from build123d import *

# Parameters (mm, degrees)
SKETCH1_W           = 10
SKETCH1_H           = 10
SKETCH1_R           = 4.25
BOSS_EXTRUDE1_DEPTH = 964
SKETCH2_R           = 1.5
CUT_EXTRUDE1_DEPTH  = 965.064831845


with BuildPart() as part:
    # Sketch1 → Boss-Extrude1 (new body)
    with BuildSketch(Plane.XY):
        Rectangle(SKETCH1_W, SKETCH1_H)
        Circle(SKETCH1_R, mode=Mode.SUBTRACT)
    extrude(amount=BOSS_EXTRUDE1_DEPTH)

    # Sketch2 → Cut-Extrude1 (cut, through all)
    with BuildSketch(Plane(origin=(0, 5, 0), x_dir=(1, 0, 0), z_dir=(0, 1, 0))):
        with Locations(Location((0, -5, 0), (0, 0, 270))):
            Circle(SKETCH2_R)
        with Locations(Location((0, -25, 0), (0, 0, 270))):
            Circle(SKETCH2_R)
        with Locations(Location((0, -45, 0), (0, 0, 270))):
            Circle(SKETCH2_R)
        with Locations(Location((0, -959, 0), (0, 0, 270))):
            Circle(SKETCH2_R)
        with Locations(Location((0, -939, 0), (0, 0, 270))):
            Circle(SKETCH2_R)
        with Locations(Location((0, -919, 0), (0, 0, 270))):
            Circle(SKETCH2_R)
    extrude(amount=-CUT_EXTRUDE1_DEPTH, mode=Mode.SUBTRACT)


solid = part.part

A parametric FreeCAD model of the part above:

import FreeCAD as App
import Part
import Sketcher

V = App.Vector
Q = App.Units.Quantity

doc = App.newDocument("Part")
body = doc.addObject("PartDesign::Body", "Body")

sketch1 = body.newObject("Sketcher::SketchObject", "Sketch")
sketch1.AttachmentSupport = (doc.getObject("XY_Plane"), [""])
sketch1.MapMode = "FlatFace"
sketch1.addGeometry(Part.LineSegment(V(-5, 5, 0), V(-5, -5, 0)), False)
sketch1.addGeometry(Part.LineSegment(V(-5, -5, 0), V(5, -5, 0)), False)
sketch1.addGeometry(Part.LineSegment(V(5, -5, 0), V(5, 5, 0)), False)
sketch1.addGeometry(Part.LineSegment(V(5, 5, 0), V(-5, 5, 0)), False)
sketch1.addGeometry(Part.Circle(V(0, 0, 0), V(0, 0, 1), 4.25), False)
sketch1.addConstraint(Sketcher.Constraint("Coincident", 0, 2, 1, 1))
sketch1.addConstraint(Sketcher.Constraint("Coincident", 1, 2, 2, 1))
sketch1.addConstraint(Sketcher.Constraint("Coincident", 2, 2, 3, 1))
sketch1.addConstraint(Sketcher.Constraint("Coincident", 3, 2, 0, 1))
sketch1.addConstraint(Sketcher.Constraint("Vertical", 0))
sketch1.addConstraint(Sketcher.Constraint("Horizontal", 1))
sketch1.addConstraint(Sketcher.Constraint("Vertical", 2))
sketch1.addConstraint(Sketcher.Constraint("Horizontal", 3))
sketch1.addConstraint(Sketcher.Constraint("Coincident", 4, 3, -1, 1))
sketch1.addConstraint(Sketcher.Constraint("Symmetric", 0, 2, 2, 2, -1, 1))
sketch1.addConstraint(Sketcher.Constraint("Equal", 3, 0))
sketch1.addConstraint(Sketcher.Constraint("Diameter", 4, Q("8.5 mm")))
sketch1.addConstraint(Sketcher.Constraint("DistanceX", 1, 1, 1, 2, Q("10 mm")))
pad1 = body.newObject("PartDesign::Pad", "Pad")
pad1.Profile = sketch1
pad1.Length = 964

sketch2 = body.newObject("Sketcher::SketchObject", "Sketch001")
sketch2.AttachmentSupport = (doc.getObject("XZ_Plane"), [""])
sketch2.MapMode = "FlatFace"
sketch2.AttachmentOffset = App.Placement(V(0, 0, -5), App.Rotation())
sketch2.addGeometry(Part.Circle(V(0, 5, 0), V(0, 0, 1), 1.5), False)
sketch2.addGeometry(Part.Circle(V(0, 25, 0), V(0, 0, 1), 1.5), False)
sketch2.addGeometry(Part.Circle(V(0, 45, 0), V(0, 0, 1), 1.5), False)
sketch2.addGeometry(Part.Circle(V(0, 959, 0), V(0, 0, 1), 1.5), False)
sketch2.addGeometry(Part.Circle(V(0, 939, 0), V(0, 0, 1), 1.5), False)
sketch2.addGeometry(Part.Circle(V(0, 919, 0), V(0, 0, 1), 1.5), False)
sketch2.addConstraint(Sketcher.Constraint("Equal", 0, 1))
sketch2.addConstraint(Sketcher.Constraint("Equal", 1, 2))
sketch2.addConstraint(Sketcher.Constraint("Equal", 2, 3))
sketch2.addConstraint(Sketcher.Constraint("Equal", 3, 4))
sketch2.addConstraint(Sketcher.Constraint("Equal", 4, 5))
sketch2.addConstraint(Sketcher.Constraint("PointOnObject", 0, 3, -2))
sketch2.addConstraint(Sketcher.Constraint("PointOnObject", 1, 3, -2))
sketch2.addConstraint(Sketcher.Constraint("PointOnObject", 2, 3, -2))
sketch2.addConstraint(Sketcher.Constraint("PointOnObject", 3, 3, -2))
sketch2.addConstraint(Sketcher.Constraint("PointOnObject", 4, 3, -2))
sketch2.addConstraint(Sketcher.Constraint("PointOnObject", 5, 3, -2))
sketch2.addConstraint(Sketcher.Constraint("Diameter", 0, Q("3 mm")))
sketch2.addConstraint(Sketcher.Constraint("DistanceY", -1, 1, 0, 3, Q("5 mm")))
sketch2.addConstraint(Sketcher.Constraint("DistanceY", -1, 1, 1, 3, Q("25 mm")))
sketch2.addConstraint(Sketcher.Constraint("DistanceY", -1, 1, 2, 3, Q("45 mm")))
sketch2.addConstraint(Sketcher.Constraint("DistanceY", -1, 1, 3, 3, Q("959 mm")))
sketch2.addConstraint(Sketcher.Constraint("DistanceY", -1, 1, 4, 3, Q("939 mm")))
sketch2.addConstraint(Sketcher.Constraint("DistanceY", -1, 1, 5, 3, Q("919 mm")))
pocket1 = body.newObject("PartDesign::Pocket", "Pocket")
pocket1.Profile = sketch2
pocket1.Type = "ThroughAll"
pocket1.Reversed = True

doc.recompute()
